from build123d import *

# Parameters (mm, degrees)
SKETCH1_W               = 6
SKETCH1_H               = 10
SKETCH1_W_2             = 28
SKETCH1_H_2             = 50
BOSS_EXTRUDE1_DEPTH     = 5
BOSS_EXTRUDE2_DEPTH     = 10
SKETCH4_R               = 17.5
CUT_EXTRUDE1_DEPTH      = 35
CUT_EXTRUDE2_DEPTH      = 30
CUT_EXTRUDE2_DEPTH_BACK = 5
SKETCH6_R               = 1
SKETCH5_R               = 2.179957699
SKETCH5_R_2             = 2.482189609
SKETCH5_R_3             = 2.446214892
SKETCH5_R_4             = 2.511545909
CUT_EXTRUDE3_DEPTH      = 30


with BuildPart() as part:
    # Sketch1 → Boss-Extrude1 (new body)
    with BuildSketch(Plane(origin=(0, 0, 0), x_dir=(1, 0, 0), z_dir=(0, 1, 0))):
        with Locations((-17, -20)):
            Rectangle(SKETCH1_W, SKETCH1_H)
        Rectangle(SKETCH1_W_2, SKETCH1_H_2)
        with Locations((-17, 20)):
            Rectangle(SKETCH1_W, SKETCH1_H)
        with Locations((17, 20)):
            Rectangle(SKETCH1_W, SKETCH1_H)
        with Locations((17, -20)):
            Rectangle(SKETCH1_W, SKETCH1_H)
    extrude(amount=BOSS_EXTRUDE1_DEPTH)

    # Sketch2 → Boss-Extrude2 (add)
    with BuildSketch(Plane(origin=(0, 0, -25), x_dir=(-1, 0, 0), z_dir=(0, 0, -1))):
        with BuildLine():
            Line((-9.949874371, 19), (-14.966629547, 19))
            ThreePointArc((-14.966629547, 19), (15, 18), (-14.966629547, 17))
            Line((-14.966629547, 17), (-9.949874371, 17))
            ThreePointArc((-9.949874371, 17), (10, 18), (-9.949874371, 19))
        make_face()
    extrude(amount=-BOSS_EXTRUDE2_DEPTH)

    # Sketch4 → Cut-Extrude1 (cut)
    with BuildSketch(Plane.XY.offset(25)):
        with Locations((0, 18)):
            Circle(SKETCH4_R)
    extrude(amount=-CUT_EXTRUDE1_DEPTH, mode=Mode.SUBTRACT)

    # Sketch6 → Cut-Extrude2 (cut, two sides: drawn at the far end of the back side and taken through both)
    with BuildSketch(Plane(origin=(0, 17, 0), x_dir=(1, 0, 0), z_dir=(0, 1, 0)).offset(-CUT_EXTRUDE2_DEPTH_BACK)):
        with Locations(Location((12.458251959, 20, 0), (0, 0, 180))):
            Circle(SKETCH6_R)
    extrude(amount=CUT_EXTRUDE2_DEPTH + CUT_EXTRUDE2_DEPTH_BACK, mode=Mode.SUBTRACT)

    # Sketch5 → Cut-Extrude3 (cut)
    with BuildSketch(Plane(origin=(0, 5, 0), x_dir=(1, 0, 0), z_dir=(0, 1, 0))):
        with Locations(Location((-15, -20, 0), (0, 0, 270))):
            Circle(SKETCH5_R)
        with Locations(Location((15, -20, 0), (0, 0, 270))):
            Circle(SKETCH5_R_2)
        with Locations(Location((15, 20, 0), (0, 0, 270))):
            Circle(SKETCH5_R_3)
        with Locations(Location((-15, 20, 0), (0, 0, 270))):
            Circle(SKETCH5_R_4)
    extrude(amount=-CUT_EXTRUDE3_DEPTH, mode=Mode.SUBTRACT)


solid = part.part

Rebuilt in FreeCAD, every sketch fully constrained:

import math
import FreeCAD as App
import Part
import Sketcher
from FreeCAD import Vector
Q = App.Units.Quantity

doc = App.newDocument("Part")
body = doc.addObject("PartDesign::Body", "Body")

# Sketch on XZ plane
sketch1 = body.newObject("Sketcher::SketchObject", "Sketch")
sketch1.AttachmentSupport = (doc.getObject("XZ_Plane"), [""])
sketch1.MapMode = "FlatFace"
sketch1.addGeometry([
    Part.LineSegment(Vector(-20, 15, 0), Vector(-20, 25, 0)),  # 0
    Part.LineSegment(Vector(-20, 25, 0), Vector(20, 25, 0)),  # 1
    Part.LineSegment(Vector(20, 25, 0), Vector(20, 15, 0)),  # 2
    Part.LineSegment(Vector(20, 15, 0), Vector(14, 15, 0)),  # 3
    Part.LineSegment(Vector(14, 15, 0), Vector(14, -15, 0)),  # 4
    Part.LineSegment(Vector(14, -15, 0), Vector(20, -15, 0)),  # 5
    Part.LineSegment(Vector(20, -15, 0), Vector(20, -25, 0)),  # 6
    Part.LineSegment(Vector(20, -25, 0), Vector(-20, -25, 0)),  # 7
    Part.LineSegment(Vector(-20, -25, 0), Vector(-20, -15, 0)),  # 8
    Part.LineSegment(Vector(-20, -15, 0), Vector(-14, -15, 0)),  # 9
    Part.LineSegment(Vector(-14, -15, 0), Vector(-14, 15, 0)),  # 10
    Part.LineSegment(Vector(-14, 15, 0), Vector(-20, 15, 0)),  # 11
], False)
sketch1.addConstraint([
    Sketcher.Constraint("Coincident", 0, 2, 1, 1),
    Sketcher.Constraint("Coincident", 1, 2, 2, 1),
    Sketcher.Constraint("Coincident", 2, 2, 3, 1),
    Sketcher.Constraint("Coincident", 3, 2, 4, 1),
    Sketcher.Constraint("Coincident", 4, 2, 5, 1),
    Sketcher.Constraint("Coincident", 5, 2, 6, 1),
    Sketcher.Constraint("Coincident", 6, 2, 7, 1),
    Sketcher.Constraint("Coincident", 7, 2, 8, 1),
    Sketcher.Constraint("Coincident", 8, 2, 9, 1),
    Sketcher.Constraint("Coincident", 9, 2, 10, 1),
    Sketcher.Constraint("Coincident", 10, 2, 11, 1),
    Sketcher.Constraint("Coincident", 11, 2, 0, 1),
    Sketcher.Constraint("Vertical", 0),
    Sketcher.Constraint("Horizontal", 1),
    Sketcher.Constraint("Vertical", 2),
    Sketcher.Constraint("Horizontal", 3),
    Sketcher.Constraint("Vertical", 4),
    Sketcher.Constraint("Horizontal", 5),
    Sketcher.Constraint("Vertical", 6),
    Sketcher.Constraint("Horizontal", 7),
    Sketcher.Constraint("Vertical", 8),
    Sketcher.Constraint("Horizontal", 9),
    Sketcher.Constraint("Vertical", 10),
    Sketcher.Constraint("Horizontal", 11),
    Sketcher.Constraint("Symmetric", 0, 2, 6, 2, -1, 1),
    Sketcher.Constraint("Symmetric", 2, 2, 8, 2, -1, 1),
    Sketcher.Constraint("Symmetric", 4, 2, 10, 2, -1, 1),
    Sketcher.Constraint("Symmetric", 5, 2, 8, 2, -2),
    Sketcher.Constraint("DistanceX", 1, 1, 1, 2, Q("40 mm")),
    Sketcher.Constraint("DistanceX", 3, 2, 3, 1, Q("6 mm")),
    Sketcher.Constraint("DistanceY", 0, 1, 0, 2, Q("10 mm")),
    Sketcher.Constraint("DistanceY", 4, 2, 4, 1, Q("30 mm")),
])
pad1 = body.newObject("PartDesign::Pad", "Pad")
pad1.Profile = sketch1
pad1.Length = 5
pad1.Reversed = True

# Sketch on XY plane
sketch2 = body.newObject("Sketcher::SketchObject", "Sketch001")
sketch2.AttachmentSupport = (doc.getObject("XY_Plane"), [""])
sketch2.MapMode = "FlatFace"
sketch2.AttachmentOffset = App.Placement(Vector(0, 0, -25), App.Rotation())
sketch2.addGeometry([
    Part.LineSegment(Vector(15, 19, 0), Vector(9.9, 19, 0)),
    Part.ArcOfCircle(Part.Circle(Vector(0, 18, 0), Vector(0, 0, 1), 10), math.radians(6), math.radians(354)),
    Part.LineSegment(Vector(9.9, 17, 0), Vector(15, 17, 0)),
    Part.ArcOfCircle(Part.Circle(Vector(0, 18, 0), Vector(0, 0, 1), 15), math.radians(4), math.radians(356)),
], False)
sketch2.addConstraint([
    Sketcher.Constraint("Coincident", 0, 2, 1, 1),
    Sketcher.Constraint("Coincident", 1, 2, 2, 1),
    Sketcher.Constraint("Coincident", 2, 2, 3, 2),
    Sketcher.Constraint("Coincident", 3, 1, 0, 1),
    Sketcher.Constraint("Horizontal", 0),
    Sketcher.Constraint("Horizontal", 2),
    Sketcher.Constraint("Coincident", 3, 3, 1, 3),
    Sketcher.Constraint("PointOnObject", 1, 3, -2),
    Sketcher.Constraint("Vertical", 0, 2, 1, 2),
    Sketcher.Constraint("Radius", 1, Q("10 mm")),
    Sketcher.Constraint("Radius", 3, Q("15 mm")),
    Sketcher.Constraint("DistanceY", -1, 1, 1, 3, Q("18 mm")),
    Sketcher.Constraint("DistanceY", -1, 1, 0, 2, Q("19 mm")),
])
pad2 = body.newObject("PartDesign::Pad", "Pad001")
pad2.Profile = sketch2
pad2.Length = 10

# Sketch on XY plane
sketch3 = body.newObject("Sketcher::SketchObject", "Sketch002")
sketch3.AttachmentSupport = (doc.getObject("XY_Plane"), [""])
sketch3.MapMode = "FlatFace"
sketch3.AttachmentOffset = App.Placement(Vector(0, 0, 25), App.Rotation())
sketch3.addGeometry(Part.Circle(Vector(0, 18, 0), Vector(0, 0, 1), 18), False)
sketch3.addConstraint([
    Sketcher.Constraint("PointOnObject", 0, 3, -2),
    Sketcher.Constraint("Diameter", 0, Q("35 mm")),
    Sketcher.Constraint("DistanceY", -1, 1, 0, 3, Q("18 mm")),
])
pocket1 = body.newObject("PartDesign::Pocket", "Pocket")
pocket1.Profile = sketch3
pocket1.Length = 35

# Sketch on XZ plane
sketch4 = body.newObject("Sketcher::SketchObject", "Sketch003")
sketch4.AttachmentSupport = (doc.getObject("XZ_Plane"), [""])
sketch4.MapMode = "FlatFace"
sketch4.AttachmentOffset = App.Placement(Vector(0, 0, -17), App.Rotation())
sketch4.addGeometry(Part.Circle(Vector(12.5, -20, 0), Vector(0, 0, 1), 1), False)
sketch4.addConstraint([
    Sketcher.Constraint("Diameter", 0, Q("2 mm")),
    Sketcher.Constraint("DistanceY", 0, 3, -1, 1, Q("20 mm")),
    Sketcher.Constraint("DistanceX", -1, 1, 0, 3, Q("12.458252 mm")),
])
pocket2 = body.newObject("PartDesign::Pocket", "Pocket001")
pocket2.Profile = sketch4
pocket2.Type = "TwoLengths"
pocket2.Length = 30
pocket2.Length2 = 5

# Sketch on XZ plane
sketch5 = body.newObject("Sketcher::SketchObject", "Sketch004")
sketch5.AttachmentSupport = (doc.getObject("XZ_Plane"), [""])
sketch5.MapMode = "FlatFace"
sketch5.AttachmentOffset = App.Placement(Vector(0, 0, -5), App.Rotation())
sketch5.addGeometry([
    Part.Circle(Vector(-15, 20, 0), Vector(0, 0, 1), 2.2),
    Part.Circle(Vector(15, 20, 0), Vector(0, 0, 1), 2.5),
    Part.Circle(Vector(15, -20, 0), Vector(0, 0, 1), 2.4),
    Part.Circle(Vector(-15, -20, 0), Vector(0, 0, 1), 2.5),
], False)
sketch5.addConstraint([
    Sketcher.Constraint("Symmetric", 0, 3, 2, 3, -1, 1),
    Sketcher.Constraint("Symmetric", 1, 3, 3, 3, -1, 1),
    Sketcher.Constraint("Symmetric", 0, 3, 1, 3, -2),
    Sketcher.Constraint("DistanceX", 0, 3, -1, 1, Q("15 mm")),
    Sketcher.Constraint("DistanceY", -1, 1, 0, 3, Q("20 mm")),
    Sketcher.Constraint("Diameter", 1, Q("4.964379 mm")),
    Sketcher.Constraint("Diameter", 2, Q("4.89243 mm")),
    Sketcher.Constraint("Diameter", 3, Q("5.023092 mm")),
    Sketcher.Constraint("Diameter", 0, Q("4.359915 mm")),
])
pocket3 = body.newObject("PartDesign::Pocket", "Pocket002")
pocket3.Profile = sketch5
pocket3.Length = 30
pocket3.Reversed = True

doc.recompute()
